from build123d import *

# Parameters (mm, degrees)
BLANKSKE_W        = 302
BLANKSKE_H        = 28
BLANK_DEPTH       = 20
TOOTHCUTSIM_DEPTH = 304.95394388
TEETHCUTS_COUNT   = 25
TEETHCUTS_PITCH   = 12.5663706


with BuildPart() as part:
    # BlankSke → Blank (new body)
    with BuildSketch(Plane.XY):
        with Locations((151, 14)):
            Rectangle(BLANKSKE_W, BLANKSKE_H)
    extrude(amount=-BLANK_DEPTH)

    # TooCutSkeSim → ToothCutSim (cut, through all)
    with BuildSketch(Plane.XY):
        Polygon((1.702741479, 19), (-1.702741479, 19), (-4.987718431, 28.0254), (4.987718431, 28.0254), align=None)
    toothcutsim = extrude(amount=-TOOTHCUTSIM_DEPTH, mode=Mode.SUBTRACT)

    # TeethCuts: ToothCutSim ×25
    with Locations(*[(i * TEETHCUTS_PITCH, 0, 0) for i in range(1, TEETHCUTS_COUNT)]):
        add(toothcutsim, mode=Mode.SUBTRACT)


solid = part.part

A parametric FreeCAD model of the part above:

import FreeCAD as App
import Part
import Sketcher

V = App.Vector
Q = App.Units.Quantity


def add_polygon(sketch, points):
    """Adds a closed chain of lines whose ends are joined by coincident constraints."""
    first, n = sketch.GeometryCount, len(points)
    for a, b in zip(points, points[1:] + points[:1]):
        sketch.addGeometry(Part.LineSegment(App.Vector(*a, 0), App.Vector(*b, 0)), False)
    for i in range(n):
        sketch.addConstraint(Sketcher.Constraint("Coincident", first + i, 2, first + (i + 1) % n, 1))

doc = App.newDocument("Part")
params = doc.addObject("Spreadsheet::Sheet", "Params")
for row, (alias, value) in enumerate([
    ("sketch1_width", "302 mm"),
    ("sketch1_height", "28 mm"),
    ("pad1_length", "20 mm"),
    ("linearpattern_pitch", "12.566371 mm"),
], start=1):
    params.set(f"A{row}", alias)
    params.set(f"B{row}", "=" + value)
    params.setAlias(f"B{row}", alias)

body = doc.addObject("PartDesign::Body", "Body")

# Sketch on XY plane
sketch1 = body.newObject("Sketcher::SketchObject", "Sketch")
sketch1.AttachmentSupport = (doc.getObject("XY_Plane"), [""])
sketch1.MapMode = "FlatFace"
add_polygon(sketch1, [(0, 28), (0, 0), (302, 0), (302, 28)])  # lines 0-3
sketch1.addConstraint(Sketcher.Constraint("Vertical", 0))
sketch1.addConstraint(Sketcher.Constraint("Horizontal", 1))
sketch1.addConstraint(Sketcher.Constraint("Vertical", 2))
sketch1.addConstraint(Sketcher.Constraint("Horizontal", 3))
sketch1.addConstraint(Sketcher.Constraint("Coincident", 0, 2, -1, 1))
sketch1.addConstraint(Sketcher.Constraint("DistanceX", 1, 1, 1, 2, Q("302 mm")))
sketch1.addConstraint(Sketcher.Constraint("DistanceY", 0, 2, 0, 1, Q("28 mm")))
sketch1.setExpression("Constraints[9]", "Params.sketch1_width")
sketch1.setExpression("Constraints[10]", "Params.sketch1_height")
pad1 = body.newObject("PartDesign::Pad", "Pad")
pad1.Profile = sketch1
pad1.setExpression("Length", "Params.pad1_length")
pad1.Reversed = True

# Sketch on XY plane
sketch2 = body.newObject("Sketcher::SketchObject", "Sketch001")
sketch2.AttachmentSupport = (doc.getObject("XY_Plane"), [""])
sketch2.MapMode = "FlatFace"
add_polygon(sketch2, [(-1.7, 19), (1.7, 19), (5, 28), (-5, 28)])  # lines 0-3
sketch2.addConstraint(Sketcher.Constraint("Horizontal", 0))
sketch2.addConstraint(Sketcher.Constraint("Horizontal", 2))
sketch2.addConstraint(Sketcher.Constraint("Equal", 1, 3))
sketch2.addConstraint(Sketcher.Constraint("Angle", 1, Q("70 deg")))
sketch2.addConstraint(Sketcher.Constraint("DistanceY", -1, 1, 0, 2, Q("19 mm")))
sketch2.addConstraint(Sketcher.Constraint("DistanceY", -1, 1, 1, 2, Q("28.0254 mm")))
sketch2.addConstraint(Sketcher.Constraint("DistanceX", 0, 1, 0, 2, Q("3.405483 mm")))
sketch2.addConstraint(Sketcher.Constraint("DistanceX", -1, 1, 0, 2, Q("1.702741 mm")))
pocket1 = body.newObject("PartDesign::Pocket", "Pocket")
pocket1.Profile = sketch2
pocket1.Type = "ThroughAll"
doc.recompute()

linearpattern = body.newObject("PartDesign::LinearPattern", "LinearPattern")
linearpattern.Originals = [pocket1]
linearpattern.Direction = (doc.getObject("X_Axis"), [""])
linearpattern.Mode = "offset"
linearpattern.setExpression("Offset", "Params.linearpattern_pitch")
linearpattern.Occurrences = 25
body.Tip = linearpattern

doc.recompute()
